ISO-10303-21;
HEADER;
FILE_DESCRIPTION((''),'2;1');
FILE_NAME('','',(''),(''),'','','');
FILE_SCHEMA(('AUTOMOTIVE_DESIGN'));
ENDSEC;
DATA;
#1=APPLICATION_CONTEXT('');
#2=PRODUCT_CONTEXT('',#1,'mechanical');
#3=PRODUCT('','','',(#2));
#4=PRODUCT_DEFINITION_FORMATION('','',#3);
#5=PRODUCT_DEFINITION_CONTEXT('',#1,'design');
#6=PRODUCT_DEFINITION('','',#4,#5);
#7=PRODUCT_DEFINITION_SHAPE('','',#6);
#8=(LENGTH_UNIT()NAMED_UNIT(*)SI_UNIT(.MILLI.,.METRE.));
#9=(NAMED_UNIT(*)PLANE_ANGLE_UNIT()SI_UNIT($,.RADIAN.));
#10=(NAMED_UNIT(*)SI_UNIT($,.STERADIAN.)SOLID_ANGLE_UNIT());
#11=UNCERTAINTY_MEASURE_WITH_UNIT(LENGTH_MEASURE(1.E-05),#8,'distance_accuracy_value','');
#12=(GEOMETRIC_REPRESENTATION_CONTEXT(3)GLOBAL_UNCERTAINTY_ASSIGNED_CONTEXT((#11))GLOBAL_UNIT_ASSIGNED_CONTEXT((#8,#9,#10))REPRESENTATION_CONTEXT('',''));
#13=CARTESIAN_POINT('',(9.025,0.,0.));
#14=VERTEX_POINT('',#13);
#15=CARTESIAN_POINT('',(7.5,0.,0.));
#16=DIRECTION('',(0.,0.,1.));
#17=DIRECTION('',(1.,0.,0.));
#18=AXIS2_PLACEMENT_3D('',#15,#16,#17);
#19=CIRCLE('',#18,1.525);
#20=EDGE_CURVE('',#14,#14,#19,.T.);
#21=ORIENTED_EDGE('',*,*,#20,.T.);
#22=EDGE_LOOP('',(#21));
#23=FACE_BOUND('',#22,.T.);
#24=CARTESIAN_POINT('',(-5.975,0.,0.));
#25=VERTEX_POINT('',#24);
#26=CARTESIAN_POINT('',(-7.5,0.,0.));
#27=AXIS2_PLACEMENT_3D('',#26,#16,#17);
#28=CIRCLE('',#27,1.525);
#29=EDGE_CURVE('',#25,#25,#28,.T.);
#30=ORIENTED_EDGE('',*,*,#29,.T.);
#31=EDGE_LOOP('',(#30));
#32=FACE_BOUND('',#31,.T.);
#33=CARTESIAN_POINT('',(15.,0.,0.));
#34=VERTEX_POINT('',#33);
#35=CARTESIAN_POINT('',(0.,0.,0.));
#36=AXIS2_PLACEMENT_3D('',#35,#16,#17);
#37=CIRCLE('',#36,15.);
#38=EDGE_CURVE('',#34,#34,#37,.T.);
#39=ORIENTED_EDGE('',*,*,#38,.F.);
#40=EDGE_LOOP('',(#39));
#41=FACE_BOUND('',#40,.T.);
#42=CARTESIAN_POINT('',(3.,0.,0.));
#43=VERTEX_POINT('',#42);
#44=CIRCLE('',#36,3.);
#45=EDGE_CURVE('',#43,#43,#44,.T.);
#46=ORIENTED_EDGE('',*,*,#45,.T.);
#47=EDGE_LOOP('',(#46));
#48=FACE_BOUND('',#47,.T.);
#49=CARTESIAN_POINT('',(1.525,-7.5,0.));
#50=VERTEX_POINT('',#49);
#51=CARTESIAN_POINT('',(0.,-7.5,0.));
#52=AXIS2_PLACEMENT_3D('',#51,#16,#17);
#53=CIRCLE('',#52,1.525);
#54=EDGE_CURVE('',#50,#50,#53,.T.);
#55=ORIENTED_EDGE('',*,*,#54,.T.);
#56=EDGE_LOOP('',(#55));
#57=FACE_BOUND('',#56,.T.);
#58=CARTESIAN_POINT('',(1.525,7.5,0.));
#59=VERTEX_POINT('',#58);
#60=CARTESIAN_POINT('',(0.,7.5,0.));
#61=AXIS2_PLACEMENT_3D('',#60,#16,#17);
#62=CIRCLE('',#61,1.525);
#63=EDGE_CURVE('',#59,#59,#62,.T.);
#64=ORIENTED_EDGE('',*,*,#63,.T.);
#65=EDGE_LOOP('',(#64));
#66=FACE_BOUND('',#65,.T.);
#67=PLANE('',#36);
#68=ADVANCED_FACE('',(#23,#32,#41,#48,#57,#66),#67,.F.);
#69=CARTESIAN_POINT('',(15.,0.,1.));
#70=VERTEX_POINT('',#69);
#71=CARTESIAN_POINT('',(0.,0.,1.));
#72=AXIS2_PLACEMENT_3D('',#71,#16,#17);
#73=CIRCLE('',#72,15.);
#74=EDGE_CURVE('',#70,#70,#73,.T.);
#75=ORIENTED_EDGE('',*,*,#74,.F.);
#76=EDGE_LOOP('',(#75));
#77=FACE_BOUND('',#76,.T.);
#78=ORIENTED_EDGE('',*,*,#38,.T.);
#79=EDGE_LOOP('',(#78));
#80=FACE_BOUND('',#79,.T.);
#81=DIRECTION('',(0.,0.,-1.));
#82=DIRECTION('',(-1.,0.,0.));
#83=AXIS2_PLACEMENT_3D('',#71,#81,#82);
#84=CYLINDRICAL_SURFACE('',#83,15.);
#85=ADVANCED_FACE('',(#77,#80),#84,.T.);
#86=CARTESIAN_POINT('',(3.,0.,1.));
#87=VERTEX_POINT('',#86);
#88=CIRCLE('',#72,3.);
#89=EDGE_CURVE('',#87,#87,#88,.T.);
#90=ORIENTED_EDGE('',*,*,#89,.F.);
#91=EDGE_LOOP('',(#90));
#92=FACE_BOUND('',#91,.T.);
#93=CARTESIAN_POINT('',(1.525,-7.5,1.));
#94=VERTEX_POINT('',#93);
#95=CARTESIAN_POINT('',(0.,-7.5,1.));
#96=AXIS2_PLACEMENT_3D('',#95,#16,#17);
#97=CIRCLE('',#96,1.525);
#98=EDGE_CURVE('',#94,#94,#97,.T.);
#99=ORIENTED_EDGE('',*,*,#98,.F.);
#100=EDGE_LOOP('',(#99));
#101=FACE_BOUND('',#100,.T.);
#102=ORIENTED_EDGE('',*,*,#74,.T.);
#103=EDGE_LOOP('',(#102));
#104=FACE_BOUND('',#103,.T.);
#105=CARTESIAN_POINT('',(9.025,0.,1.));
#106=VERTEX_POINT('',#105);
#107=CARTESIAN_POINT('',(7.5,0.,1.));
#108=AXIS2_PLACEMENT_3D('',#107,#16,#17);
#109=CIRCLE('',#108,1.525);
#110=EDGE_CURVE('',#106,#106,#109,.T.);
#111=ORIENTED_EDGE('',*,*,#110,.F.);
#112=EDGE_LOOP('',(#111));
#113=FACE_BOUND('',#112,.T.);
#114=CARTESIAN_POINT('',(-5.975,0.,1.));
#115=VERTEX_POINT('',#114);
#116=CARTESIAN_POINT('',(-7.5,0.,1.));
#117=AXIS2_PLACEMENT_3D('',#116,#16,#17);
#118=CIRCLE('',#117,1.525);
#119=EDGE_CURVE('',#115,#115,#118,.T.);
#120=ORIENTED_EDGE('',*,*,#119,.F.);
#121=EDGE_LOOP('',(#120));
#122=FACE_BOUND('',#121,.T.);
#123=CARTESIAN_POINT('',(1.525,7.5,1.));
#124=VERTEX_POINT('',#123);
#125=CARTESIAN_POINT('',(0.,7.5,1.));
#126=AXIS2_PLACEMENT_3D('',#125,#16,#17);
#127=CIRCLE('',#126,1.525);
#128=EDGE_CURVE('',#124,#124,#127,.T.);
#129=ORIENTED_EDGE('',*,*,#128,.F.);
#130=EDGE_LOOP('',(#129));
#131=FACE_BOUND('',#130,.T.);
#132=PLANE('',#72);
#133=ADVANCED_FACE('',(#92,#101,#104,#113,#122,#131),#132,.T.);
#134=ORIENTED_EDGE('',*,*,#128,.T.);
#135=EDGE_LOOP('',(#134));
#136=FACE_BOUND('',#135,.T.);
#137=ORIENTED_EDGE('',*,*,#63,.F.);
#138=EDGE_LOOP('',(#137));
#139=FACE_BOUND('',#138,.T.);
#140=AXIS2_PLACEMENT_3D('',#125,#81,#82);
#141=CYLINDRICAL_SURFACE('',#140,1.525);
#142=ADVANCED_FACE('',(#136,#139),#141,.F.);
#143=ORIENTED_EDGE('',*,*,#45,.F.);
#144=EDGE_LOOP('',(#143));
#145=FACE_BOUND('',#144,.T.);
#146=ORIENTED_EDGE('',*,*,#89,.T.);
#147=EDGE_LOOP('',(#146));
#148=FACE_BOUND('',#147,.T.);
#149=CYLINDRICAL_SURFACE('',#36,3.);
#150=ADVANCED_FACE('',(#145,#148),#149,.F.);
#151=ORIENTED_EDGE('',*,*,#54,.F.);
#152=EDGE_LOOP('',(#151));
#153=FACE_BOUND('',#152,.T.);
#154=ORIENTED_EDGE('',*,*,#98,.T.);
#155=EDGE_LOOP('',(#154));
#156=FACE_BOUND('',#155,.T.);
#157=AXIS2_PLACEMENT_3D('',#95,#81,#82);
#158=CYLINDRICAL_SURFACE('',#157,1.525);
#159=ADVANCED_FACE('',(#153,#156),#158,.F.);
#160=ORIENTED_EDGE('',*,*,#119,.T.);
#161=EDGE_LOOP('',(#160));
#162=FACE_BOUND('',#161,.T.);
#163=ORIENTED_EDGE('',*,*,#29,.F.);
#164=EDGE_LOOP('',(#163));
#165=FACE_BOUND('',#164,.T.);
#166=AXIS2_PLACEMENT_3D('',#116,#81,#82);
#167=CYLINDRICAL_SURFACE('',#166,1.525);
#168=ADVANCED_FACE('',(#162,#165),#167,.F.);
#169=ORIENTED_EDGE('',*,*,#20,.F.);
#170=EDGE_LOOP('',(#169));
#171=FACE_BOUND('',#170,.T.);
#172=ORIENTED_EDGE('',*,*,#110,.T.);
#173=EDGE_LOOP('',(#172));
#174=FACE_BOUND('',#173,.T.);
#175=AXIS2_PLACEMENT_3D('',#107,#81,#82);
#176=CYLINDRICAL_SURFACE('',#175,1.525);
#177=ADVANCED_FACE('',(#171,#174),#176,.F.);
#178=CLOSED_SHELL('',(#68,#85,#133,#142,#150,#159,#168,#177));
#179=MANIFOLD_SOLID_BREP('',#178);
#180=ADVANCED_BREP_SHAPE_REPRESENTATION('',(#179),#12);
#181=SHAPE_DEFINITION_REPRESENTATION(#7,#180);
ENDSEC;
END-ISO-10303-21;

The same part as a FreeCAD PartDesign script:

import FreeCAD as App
import Part
import Sketcher

V = App.Vector

doc = App.newDocument("Part")
body = doc.addObject("PartDesign::Body", "Body")

sketch1 = body.newObject("Sketcher::SketchObject", "Sketch")
sketch1.AttachmentSupport = (doc.getObject("XY_Plane"), [""])
sketch1.MapMode = "FlatFace"
sketch1.addGeometry(Part.Circle(V(0, 0, 0), V(0, 0, 1), 15), False)
sketch1.addGeometry(Part.Circle(V(0, -7.5, 0), V(0, 0, 1), 1.525), False)
sketch1.addGeometry(Part.Circle(V(-7.5, 0, 0), V(0, 0, 1), 1.525), False)
sketch1.addGeometry(Part.Circle(V(0, 7.5, 0), V(0, 0, 1), 1.525), False)
sketch1.addGeometry(Part.Circle(V(7.5, 0, 0), V(0, 0, 1), 1.525), False)
sketch1.addConstraint(Sketcher.Constraint("Coincident", 0, 3, -1, 1))
sketch1.addConstraint(Sketcher.Constraint("Equal", 1, 2))
sketch1.addConstraint(Sketcher.Constraint("Equal", 2, 3))
sketch1.addConstraint(Sketcher.Constraint("Equal", 3, 4))
sketch1.addConstraint(Sketcher.Constraint("Symmetric", 1, 3, 3, 3, -1, 1))
sketch1.addConstraint(Sketcher.Constraint("Symmetric", 2, 3, 4, 3, -1, 1))
sketch1.addConstraint(Sketcher.Constraint("PointOnObject", 1, 3, -2))
sketch1.addConstraint(Sketcher.Constraint("PointOnObject", 2, 3, -1))
sketch1.addConstraint(Sketcher.Constraint("Diameter", 0, 30.0))
sketch1.addConstraint(Sketcher.Constraint("Diameter", 1, 3.05))
sketch1.addConstraint(Sketcher.Constraint("DistanceY", 1, 3, 3, 3, 15.0))
sketch1.addConstraint(Sketcher.Constraint("DistanceX", 2, 3, 4, 3, 15.0))
pad1 = body.newObject("PartDesign::Pad", "Pad")
pad1.Profile = sketch1
pad1.Length = 1

sketch2 = body.newObject("Sketcher::SketchObject", "Sketch001")
sketch2.AttachmentSupport = (doc.getObject("XY_Plane"), [""])
sketch2.MapMode = "FlatFace"
sketch2.AttachmentOffset = App.Placement(V(0, 0, 1), App.Rotation())
sketch2.addGeometry(Part.Circle(V(0, 0, 0), V(0, 0, 1), 3), False)
sketch2.addConstraint(Sketcher.Constraint("Coincident", 0, 3, -1, 1))
sketch2.addConstraint(Sketcher.Constraint("Diameter", 0, 6.0))
pocket1 = body.newObject("PartDesign::Pocket", "Pocket")
pocket1.Profile = sketch2
pocket1.Length = 1

doc.recompute()
